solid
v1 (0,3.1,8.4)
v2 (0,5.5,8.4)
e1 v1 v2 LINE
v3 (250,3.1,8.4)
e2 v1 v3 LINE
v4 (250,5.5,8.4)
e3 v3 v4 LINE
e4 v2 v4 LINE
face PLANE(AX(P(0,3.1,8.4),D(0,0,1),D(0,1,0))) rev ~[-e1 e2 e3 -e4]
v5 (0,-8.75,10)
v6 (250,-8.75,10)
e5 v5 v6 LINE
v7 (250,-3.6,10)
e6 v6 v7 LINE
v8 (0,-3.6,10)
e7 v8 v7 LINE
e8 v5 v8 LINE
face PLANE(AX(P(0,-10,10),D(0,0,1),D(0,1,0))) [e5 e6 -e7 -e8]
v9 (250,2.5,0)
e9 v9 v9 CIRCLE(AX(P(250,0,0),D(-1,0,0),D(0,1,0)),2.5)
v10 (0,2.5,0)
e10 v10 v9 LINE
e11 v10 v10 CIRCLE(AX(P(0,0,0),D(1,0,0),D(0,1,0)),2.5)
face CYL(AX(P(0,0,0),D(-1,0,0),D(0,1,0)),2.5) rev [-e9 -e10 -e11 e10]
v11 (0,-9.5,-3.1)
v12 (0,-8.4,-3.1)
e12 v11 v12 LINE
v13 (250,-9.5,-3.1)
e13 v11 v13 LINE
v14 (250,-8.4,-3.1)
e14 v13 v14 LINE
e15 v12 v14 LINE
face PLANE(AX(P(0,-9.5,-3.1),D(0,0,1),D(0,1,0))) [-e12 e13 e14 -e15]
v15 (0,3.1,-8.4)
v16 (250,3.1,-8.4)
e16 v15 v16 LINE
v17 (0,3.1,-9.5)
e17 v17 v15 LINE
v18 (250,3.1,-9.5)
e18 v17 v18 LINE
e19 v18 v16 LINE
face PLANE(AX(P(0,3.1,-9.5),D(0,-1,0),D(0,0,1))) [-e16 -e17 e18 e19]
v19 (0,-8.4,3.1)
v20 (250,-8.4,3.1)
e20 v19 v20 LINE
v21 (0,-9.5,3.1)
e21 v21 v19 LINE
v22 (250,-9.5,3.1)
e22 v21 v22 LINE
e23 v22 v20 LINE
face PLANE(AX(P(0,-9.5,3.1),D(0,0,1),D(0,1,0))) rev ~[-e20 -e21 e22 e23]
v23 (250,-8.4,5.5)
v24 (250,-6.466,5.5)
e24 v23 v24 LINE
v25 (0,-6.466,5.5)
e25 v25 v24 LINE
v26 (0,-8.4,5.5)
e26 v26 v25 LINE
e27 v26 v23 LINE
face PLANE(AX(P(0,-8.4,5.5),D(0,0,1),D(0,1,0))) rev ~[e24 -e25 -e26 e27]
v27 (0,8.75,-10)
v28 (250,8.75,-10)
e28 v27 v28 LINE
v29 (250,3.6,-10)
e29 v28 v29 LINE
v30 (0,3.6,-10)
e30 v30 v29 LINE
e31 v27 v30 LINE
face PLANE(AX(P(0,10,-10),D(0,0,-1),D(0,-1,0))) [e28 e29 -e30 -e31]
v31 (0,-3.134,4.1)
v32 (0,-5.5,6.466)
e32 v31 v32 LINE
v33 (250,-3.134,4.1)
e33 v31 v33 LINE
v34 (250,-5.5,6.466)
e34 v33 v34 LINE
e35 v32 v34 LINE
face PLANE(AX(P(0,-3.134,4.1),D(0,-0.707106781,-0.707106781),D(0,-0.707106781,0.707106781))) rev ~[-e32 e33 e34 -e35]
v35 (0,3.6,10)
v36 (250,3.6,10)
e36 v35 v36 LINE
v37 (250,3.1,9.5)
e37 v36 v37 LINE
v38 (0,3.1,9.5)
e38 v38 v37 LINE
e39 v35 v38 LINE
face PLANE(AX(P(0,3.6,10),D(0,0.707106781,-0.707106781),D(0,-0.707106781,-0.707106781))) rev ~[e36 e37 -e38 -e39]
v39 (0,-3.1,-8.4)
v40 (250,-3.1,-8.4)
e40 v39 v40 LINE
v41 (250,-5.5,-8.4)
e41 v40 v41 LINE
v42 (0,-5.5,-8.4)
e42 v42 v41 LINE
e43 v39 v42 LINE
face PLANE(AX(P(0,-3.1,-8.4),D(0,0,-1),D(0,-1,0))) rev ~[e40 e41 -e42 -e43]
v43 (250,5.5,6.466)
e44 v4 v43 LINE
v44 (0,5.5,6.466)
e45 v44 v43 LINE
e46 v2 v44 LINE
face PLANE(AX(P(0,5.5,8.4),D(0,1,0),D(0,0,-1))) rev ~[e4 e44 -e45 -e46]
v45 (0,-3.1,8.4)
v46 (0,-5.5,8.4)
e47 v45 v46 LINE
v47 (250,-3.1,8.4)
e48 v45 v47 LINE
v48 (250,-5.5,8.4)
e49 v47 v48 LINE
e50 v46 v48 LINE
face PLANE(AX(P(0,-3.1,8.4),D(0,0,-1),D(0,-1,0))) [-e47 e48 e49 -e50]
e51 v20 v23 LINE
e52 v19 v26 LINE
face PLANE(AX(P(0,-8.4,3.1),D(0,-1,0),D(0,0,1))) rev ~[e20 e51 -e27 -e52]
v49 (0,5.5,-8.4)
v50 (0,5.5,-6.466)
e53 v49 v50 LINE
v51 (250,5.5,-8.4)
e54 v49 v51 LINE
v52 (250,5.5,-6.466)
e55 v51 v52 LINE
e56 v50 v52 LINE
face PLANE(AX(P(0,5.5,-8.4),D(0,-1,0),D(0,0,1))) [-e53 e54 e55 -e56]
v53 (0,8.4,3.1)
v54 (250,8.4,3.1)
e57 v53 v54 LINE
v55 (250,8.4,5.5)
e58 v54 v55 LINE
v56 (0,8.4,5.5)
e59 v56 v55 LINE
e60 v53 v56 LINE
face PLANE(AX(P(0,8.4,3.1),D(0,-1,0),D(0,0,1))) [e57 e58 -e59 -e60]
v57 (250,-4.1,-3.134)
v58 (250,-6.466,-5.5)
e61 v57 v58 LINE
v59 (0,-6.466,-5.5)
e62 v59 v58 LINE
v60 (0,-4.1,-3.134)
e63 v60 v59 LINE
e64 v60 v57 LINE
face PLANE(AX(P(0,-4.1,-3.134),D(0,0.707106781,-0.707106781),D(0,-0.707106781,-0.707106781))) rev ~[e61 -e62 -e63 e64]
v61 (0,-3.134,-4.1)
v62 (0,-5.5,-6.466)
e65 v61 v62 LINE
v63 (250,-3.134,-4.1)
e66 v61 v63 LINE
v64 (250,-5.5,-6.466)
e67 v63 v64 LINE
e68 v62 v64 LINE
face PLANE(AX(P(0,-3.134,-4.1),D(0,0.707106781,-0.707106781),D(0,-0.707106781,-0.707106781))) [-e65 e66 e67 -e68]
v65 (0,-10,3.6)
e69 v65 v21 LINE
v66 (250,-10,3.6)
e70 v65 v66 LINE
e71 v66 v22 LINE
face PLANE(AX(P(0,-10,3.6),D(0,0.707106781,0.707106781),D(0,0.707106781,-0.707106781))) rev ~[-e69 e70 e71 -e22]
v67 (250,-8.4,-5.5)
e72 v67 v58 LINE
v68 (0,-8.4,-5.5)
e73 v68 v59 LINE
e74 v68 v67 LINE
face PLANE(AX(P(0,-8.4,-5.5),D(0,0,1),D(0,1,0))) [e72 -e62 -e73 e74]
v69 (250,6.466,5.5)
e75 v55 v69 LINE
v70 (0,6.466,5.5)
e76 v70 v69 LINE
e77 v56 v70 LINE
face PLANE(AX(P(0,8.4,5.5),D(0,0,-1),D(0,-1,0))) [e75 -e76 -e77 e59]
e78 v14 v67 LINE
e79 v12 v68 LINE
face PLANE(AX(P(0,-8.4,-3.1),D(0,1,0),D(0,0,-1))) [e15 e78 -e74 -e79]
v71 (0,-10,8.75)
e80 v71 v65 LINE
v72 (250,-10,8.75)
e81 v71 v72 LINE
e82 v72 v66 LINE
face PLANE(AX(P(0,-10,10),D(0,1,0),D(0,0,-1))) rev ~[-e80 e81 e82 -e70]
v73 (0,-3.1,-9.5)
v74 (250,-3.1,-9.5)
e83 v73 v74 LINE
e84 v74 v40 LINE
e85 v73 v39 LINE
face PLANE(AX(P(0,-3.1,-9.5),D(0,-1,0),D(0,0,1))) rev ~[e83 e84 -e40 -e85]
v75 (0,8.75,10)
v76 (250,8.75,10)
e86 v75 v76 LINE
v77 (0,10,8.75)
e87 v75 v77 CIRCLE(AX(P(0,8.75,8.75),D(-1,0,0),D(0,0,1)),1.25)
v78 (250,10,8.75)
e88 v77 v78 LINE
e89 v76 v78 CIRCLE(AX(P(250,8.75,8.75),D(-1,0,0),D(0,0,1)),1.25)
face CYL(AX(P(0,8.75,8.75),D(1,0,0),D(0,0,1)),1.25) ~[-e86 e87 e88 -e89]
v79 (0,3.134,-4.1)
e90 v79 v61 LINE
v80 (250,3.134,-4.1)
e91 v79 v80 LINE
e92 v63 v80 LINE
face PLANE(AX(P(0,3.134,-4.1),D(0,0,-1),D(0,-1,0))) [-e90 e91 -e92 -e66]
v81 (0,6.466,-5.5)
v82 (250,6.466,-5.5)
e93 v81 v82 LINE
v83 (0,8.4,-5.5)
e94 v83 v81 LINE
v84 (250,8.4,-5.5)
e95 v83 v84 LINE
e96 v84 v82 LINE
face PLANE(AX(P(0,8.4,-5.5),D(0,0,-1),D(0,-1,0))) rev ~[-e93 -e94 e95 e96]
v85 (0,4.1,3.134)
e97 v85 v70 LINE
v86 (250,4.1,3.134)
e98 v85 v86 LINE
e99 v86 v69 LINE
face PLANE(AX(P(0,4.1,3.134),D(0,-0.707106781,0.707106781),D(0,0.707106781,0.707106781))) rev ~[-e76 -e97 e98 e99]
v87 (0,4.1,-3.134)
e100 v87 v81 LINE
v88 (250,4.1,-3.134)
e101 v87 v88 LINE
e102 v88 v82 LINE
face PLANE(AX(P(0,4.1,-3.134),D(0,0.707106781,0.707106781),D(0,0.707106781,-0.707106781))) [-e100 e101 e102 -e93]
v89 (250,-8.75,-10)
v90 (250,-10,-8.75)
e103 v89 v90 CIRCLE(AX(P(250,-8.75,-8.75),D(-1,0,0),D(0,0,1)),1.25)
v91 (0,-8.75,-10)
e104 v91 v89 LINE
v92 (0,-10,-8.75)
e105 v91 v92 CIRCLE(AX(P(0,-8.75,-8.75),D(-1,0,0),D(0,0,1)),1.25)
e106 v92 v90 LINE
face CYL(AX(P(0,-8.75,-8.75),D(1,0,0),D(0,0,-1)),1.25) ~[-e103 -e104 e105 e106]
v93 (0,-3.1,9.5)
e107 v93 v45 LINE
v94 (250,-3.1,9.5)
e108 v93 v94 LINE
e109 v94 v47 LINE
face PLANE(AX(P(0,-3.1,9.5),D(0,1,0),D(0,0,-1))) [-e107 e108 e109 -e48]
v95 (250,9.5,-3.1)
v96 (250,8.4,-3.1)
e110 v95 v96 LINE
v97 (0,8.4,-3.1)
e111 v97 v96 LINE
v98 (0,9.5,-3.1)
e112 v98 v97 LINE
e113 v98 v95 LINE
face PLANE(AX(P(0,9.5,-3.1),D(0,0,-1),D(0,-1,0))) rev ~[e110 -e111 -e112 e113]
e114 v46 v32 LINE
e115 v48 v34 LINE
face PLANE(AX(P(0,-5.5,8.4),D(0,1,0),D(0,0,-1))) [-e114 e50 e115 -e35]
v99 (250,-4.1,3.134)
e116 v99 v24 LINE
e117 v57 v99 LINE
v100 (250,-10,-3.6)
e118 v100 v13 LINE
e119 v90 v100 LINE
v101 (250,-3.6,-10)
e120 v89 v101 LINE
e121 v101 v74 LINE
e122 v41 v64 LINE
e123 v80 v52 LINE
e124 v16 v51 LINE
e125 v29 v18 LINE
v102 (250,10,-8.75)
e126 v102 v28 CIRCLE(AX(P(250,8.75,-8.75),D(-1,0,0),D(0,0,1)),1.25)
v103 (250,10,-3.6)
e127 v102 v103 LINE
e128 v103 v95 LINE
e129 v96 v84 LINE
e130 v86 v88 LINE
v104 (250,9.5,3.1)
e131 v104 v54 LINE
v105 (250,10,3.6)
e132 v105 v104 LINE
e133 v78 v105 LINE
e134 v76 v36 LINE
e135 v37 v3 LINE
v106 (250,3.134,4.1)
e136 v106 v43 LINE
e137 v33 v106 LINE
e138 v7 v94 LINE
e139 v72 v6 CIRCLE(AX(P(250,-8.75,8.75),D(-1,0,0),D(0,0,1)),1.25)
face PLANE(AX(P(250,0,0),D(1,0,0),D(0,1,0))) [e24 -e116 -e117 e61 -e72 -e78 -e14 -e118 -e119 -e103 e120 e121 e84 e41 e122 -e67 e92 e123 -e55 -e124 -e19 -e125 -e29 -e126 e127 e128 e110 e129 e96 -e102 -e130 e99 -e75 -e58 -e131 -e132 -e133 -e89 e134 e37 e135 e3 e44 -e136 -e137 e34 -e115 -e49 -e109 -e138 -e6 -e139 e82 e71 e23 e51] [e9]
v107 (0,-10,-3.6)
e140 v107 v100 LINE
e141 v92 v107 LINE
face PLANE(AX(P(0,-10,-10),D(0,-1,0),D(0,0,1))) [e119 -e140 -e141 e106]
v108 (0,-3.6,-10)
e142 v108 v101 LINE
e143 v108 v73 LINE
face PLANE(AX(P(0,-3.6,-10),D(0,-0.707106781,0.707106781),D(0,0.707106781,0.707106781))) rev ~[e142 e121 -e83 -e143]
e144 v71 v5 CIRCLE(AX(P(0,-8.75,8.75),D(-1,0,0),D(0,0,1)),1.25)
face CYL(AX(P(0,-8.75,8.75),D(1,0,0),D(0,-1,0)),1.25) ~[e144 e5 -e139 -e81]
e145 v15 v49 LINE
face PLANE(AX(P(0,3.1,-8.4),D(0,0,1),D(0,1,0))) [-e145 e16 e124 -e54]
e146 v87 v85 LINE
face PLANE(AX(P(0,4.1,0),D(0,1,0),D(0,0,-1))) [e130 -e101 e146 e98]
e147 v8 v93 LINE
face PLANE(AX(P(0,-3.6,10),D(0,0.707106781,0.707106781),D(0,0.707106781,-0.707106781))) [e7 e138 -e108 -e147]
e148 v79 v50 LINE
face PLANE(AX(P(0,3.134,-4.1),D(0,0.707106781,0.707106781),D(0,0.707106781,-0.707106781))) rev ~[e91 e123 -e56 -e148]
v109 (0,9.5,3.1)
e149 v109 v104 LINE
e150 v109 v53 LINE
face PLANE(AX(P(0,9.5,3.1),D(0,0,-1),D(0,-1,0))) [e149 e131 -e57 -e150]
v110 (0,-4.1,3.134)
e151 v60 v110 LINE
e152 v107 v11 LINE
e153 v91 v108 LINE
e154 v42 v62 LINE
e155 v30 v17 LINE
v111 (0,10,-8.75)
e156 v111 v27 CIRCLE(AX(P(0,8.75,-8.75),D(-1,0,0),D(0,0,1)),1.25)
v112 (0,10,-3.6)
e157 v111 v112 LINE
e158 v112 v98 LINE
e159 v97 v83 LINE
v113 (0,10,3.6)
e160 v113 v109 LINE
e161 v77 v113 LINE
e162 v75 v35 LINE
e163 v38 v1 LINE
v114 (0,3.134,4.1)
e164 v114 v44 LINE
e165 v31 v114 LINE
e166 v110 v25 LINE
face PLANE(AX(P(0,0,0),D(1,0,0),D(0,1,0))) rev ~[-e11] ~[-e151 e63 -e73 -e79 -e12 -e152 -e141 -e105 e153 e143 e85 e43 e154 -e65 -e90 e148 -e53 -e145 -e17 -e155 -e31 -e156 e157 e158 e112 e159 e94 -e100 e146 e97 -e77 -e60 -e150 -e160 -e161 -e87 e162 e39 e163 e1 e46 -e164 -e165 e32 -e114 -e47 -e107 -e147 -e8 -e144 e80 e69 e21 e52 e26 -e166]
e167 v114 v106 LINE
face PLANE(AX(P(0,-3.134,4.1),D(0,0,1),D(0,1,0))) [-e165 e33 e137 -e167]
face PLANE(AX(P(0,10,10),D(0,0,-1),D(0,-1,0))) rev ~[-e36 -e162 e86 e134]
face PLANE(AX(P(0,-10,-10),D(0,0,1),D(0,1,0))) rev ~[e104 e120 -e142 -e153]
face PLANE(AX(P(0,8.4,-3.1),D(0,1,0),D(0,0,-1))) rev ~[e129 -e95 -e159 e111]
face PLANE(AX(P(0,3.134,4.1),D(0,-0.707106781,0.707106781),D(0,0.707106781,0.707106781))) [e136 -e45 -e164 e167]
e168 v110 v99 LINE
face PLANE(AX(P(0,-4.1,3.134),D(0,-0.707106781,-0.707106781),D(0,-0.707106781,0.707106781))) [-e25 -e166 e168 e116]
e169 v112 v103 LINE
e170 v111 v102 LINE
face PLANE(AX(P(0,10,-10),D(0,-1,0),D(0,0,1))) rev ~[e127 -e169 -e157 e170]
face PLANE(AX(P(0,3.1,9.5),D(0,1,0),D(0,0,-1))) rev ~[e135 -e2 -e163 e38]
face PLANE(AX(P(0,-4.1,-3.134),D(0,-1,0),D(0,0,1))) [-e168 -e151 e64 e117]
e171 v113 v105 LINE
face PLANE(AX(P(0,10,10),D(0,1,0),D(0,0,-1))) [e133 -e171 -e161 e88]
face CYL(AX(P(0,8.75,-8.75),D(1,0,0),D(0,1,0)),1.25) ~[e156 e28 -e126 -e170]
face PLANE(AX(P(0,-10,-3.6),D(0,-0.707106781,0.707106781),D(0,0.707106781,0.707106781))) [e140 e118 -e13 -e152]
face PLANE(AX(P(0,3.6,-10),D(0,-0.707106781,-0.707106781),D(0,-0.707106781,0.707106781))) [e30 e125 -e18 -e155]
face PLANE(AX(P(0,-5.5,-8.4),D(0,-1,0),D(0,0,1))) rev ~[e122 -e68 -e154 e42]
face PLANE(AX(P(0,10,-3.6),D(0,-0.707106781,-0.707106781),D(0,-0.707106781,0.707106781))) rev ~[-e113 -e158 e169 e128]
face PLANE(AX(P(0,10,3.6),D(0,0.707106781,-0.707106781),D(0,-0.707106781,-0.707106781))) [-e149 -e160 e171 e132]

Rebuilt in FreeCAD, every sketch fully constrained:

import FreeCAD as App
import Part
import Sketcher
Q = App.Units.Quantity


def edges_at(feature, points):
    """Names of the edges that pass closest to the given points."""
    edges = feature.Shape.Edges
    near = lambda p: min(range(len(edges)), key=lambda i: edges[i].distToShape(Part.Vertex(*p))[0])
    return sorted({f"Edge{near(p) + 1}" for p in points})


def add_polygon(sketch, points):
    """Adds a closed chain of lines whose ends are joined by coincident constraints."""
    first, n = sketch.GeometryCount, len(points)
    for a, b in zip(points, points[1:] + points[:1]):
        sketch.addGeometry(Part.LineSegment(App.Vector(*a, 0), App.Vector(*b, 0)), False)
    for i in range(n):
        sketch.addConstraint(Sketcher.Constraint("Coincident", first + i, 2, first + (i + 1) % n, 1))

doc = App.newDocument("Part")
body = doc.addObject("PartDesign::Body", "Body")

sketch1 = body.newObject("Sketcher::SketchObject", "Sketch")
sketch1.AttachmentSupport = (doc.getObject("YZ_Plane"), [""])
sketch1.MapMode = "FlatFace"
add_polygon(sketch1, [(4.1, -3.1), (4.1, 3.1), (6.5, 5.5), (8.4, 5.5), (8.4, 3.1), (9.5, 3.1), (10, 3.6), (10, 10), (3.6, 10), (3.1, 9.5), (3.1, 8.4), (5.5, 8.4), (5.5, 6.5), (3.1, 4.1), (-3.1, 4.1), (-5.5, 6.5), (-5.5, 8.4), (-3.1, 8.4), (-3.1, 9.5), (-3.6, 10), (-10, 10), (-10, 3.6), (-9.5, 3.1), (-8.4, 3.1), (-8.4, 5.5), (-6.5, 5.5), (-4.1, 3.1), (-4.1, -3.1), (-6.5, -5.5), (-8.4, -5.5), (-8.4, -3.1), (-9.5, -3.1), (-10, -3.6), (-10, -10), (-3.6, -10), (-3.1, -9.5), (-3.1, -8.4), (-5.5, -8.4), (-5.5, -6.5), (-3.1, -4.1), (3.1, -4.1), (5.5, -6.5), (5.5, -8.4), (3.1, -8.4), (3.1, -9.5), (3.6, -10), (10, -10), (10, -3.6), (9.5, -3.1), (8.4, -3.1), (8.4, -5.5), (6.5, -5.5)])
sketch1.addGeometry(Part.Circle(App.Vector(0, 0, 0), App.Vector(0, 0, 1), 2.5), False)
sketch1.addConstraint([
    Sketcher.Constraint("Vertical", 0),
    Sketcher.Constraint("Horizontal", 2),
    Sketcher.Constraint("Vertical", 3),
    Sketcher.Constraint("Horizontal", 4),
    Sketcher.Constraint("Vertical", 6),
    Sketcher.Constraint("Horizontal", 7),
    Sketcher.Constraint("Vertical", 9),
    Sketcher.Constraint("Horizontal", 10),
    Sketcher.Constraint("Vertical", 11),
    Sketcher.Constraint("Horizontal", 13),
    Sketcher.Constraint("Vertical", 15),
    Sketcher.Constraint("Horizontal", 16),
    Sketcher.Constraint("Vertical", 17),
    Sketcher.Constraint("Horizontal", 19),
    Sketcher.Constraint("Vertical", 20),
    Sketcher.Constraint("Horizontal", 22),
    Sketcher.Constraint("Vertical", 23),
    Sketcher.Constraint("Horizontal", 24),
    Sketcher.Constraint("Vertical", 26),
    Sketcher.Constraint("Horizontal", 28),
    Sketcher.Constraint("Vertical", 29),
    Sketcher.Constraint("Horizontal", 30),
    Sketcher.Constraint("Vertical", 32),
    Sketcher.Constraint("Horizontal", 33),
    Sketcher.Constraint("Vertical", 35),
    Sketcher.Constraint("Horizontal", 36),
    Sketcher.Constraint("Vertical", 37),
    Sketcher.Constraint("Horizontal", 39),
    Sketcher.Constraint("Vertical", 41),
    Sketcher.Constraint("Horizontal", 42),
    Sketcher.Constraint("Vertical", 43),
    Sketcher.Constraint("Horizontal", 45),
    Sketcher.Constraint("Vertical", 46),
    Sketcher.Constraint("Horizontal", 48),
    Sketcher.Constraint("Vertical", 49),
    Sketcher.Constraint("Horizontal", 50),
    Sketcher.Constraint("Coincident", 52, 3, -1, 1),
    Sketcher.Constraint("Symmetric", 0, 2, 26, 2, -1, 1),
    Sketcher.Constraint("Symmetric", 1, 2, 27, 2, -1, 1),
    Sketcher.Constraint("Symmetric", 3, 2, 29, 2, -1, 1),
    Sketcher.Constraint("Symmetric", 5, 2, 31, 2, -1, 1),
    Sketcher.Constraint("Symmetric", 7, 2, 33, 2, -1, 1),
    Sketcher.Constraint("Symmetric", 8, 2, 34, 2, -1, 1),
    Sketcher.Constraint("Symmetric", 10, 2, 36, 2, -1, 1),
    Sketcher.Constraint("Symmetric", 12, 2, 38, 2, -1, 1),
    Sketcher.Constraint("Symmetric", 14, 2, 40, 2, -1, 1),
    Sketcher.Constraint("Symmetric", 16, 2, 42, 2, -1, 1),
    Sketcher.Constraint("Symmetric", 18, 2, 44, 2, -1, 1),
    Sketcher.Constraint("Symmetric", 20, 2, 46, 2, -1, 1),
    Sketcher.Constraint("Symmetric", 21, 2, 47, 2, -1, 1),
    Sketcher.Constraint("Symmetric", 23, 2, 49, 2, -1, 1),
    Sketcher.Constraint("Symmetric", 11, 2, 14, 2, -2),
    Sketcher.Constraint("Symmetric", 9, 2, 16, 2, -2),
    Sketcher.Constraint("Symmetric", 7, 2, 18, 2, -2),
    Sketcher.Constraint("Symmetric", 5, 2, 20, 2, -2),
    Sketcher.Constraint("Symmetric", 4, 2, 21, 2, -2),
    Sketcher.Constraint("Symmetric", 2, 2, 23, 2, -2),
    Sketcher.Constraint("Parallel", 1, 5),
    Sketcher.Constraint("Parallel", 5, 8),
    Sketcher.Constraint("Parallel", 8, 12),
    Sketcher.Constraint("Perpendicular", 12, 14),
    Sketcher.Constraint("Parallel", 14, 18),
    Sketcher.Constraint("Parallel", 18, 21),
    Sketcher.Constraint("Parallel", 21, 25),
    Sketcher.Constraint("Parallel", 27, 31),
    Sketcher.Constraint("Parallel", 34, 38),
    Sketcher.Constraint("Perpendicular", 38, 40),
    Sketcher.Constraint("Parallel", 40, 44),
    Sketcher.Constraint("Parallel", 47, 51),
    Sketcher.Constraint("Horizontal", 0, 2, 25, 2),
    Sketcher.Constraint("Horizontal", 26, 2, 51, 2),
    Sketcher.Constraint("Equal", 39, 0),
    Sketcher.Constraint("Equal", 42, 3),
    Sketcher.Constraint("Equal", 45, 6),
    Sketcher.Constraint("Equal", 48, 9),
    Sketcher.Constraint("Equal", 50, 11),
    Sketcher.Constraint("Equal", 5, 8),
    Sketcher.Constraint("Equal", 1, 12),
    Sketcher.Constraint("Diameter", 52, Q("5 mm")),
    Sketcher.Constraint("DistanceY", -1, 1, 1, 2, Q("5.5 mm")),
    Sketcher.Constraint("DistanceY", -1, 1, 3, 2, Q("3.1 mm")),
    Sketcher.Constraint("DistanceY", -1, 1, 5, 2, Q("3.6 mm")),
    Sketcher.Constraint("DistanceX", 0, 2, 2, 2, Q("4.3 mm")),
    Sketcher.Constraint("DistanceX", 3, 2, 5, 2, Q("1.6 mm")),
    Sketcher.Constraint("DistanceX", 7, 2, 7, 1, Q("6.4 mm")),
    Sketcher.Constraint("DistanceX", 2, 1, 2, 2, Q("1.934 mm")),
])
pad1 = body.newObject("PartDesign::Pad", "Pad")
pad1.Profile = sketch1
pad1.Length = 250
doc.recompute()

fillet = body.newObject("PartDesign::Fillet", "Fillet")
fillet.Base = (pad1, edges_at(pad1, [
    (125, 10, 10),
    (125, -10, 10),
    (125, 10, -10),
    (125, -10, -10),
]))
fillet.Radius = 1.25

doc.recompute()
